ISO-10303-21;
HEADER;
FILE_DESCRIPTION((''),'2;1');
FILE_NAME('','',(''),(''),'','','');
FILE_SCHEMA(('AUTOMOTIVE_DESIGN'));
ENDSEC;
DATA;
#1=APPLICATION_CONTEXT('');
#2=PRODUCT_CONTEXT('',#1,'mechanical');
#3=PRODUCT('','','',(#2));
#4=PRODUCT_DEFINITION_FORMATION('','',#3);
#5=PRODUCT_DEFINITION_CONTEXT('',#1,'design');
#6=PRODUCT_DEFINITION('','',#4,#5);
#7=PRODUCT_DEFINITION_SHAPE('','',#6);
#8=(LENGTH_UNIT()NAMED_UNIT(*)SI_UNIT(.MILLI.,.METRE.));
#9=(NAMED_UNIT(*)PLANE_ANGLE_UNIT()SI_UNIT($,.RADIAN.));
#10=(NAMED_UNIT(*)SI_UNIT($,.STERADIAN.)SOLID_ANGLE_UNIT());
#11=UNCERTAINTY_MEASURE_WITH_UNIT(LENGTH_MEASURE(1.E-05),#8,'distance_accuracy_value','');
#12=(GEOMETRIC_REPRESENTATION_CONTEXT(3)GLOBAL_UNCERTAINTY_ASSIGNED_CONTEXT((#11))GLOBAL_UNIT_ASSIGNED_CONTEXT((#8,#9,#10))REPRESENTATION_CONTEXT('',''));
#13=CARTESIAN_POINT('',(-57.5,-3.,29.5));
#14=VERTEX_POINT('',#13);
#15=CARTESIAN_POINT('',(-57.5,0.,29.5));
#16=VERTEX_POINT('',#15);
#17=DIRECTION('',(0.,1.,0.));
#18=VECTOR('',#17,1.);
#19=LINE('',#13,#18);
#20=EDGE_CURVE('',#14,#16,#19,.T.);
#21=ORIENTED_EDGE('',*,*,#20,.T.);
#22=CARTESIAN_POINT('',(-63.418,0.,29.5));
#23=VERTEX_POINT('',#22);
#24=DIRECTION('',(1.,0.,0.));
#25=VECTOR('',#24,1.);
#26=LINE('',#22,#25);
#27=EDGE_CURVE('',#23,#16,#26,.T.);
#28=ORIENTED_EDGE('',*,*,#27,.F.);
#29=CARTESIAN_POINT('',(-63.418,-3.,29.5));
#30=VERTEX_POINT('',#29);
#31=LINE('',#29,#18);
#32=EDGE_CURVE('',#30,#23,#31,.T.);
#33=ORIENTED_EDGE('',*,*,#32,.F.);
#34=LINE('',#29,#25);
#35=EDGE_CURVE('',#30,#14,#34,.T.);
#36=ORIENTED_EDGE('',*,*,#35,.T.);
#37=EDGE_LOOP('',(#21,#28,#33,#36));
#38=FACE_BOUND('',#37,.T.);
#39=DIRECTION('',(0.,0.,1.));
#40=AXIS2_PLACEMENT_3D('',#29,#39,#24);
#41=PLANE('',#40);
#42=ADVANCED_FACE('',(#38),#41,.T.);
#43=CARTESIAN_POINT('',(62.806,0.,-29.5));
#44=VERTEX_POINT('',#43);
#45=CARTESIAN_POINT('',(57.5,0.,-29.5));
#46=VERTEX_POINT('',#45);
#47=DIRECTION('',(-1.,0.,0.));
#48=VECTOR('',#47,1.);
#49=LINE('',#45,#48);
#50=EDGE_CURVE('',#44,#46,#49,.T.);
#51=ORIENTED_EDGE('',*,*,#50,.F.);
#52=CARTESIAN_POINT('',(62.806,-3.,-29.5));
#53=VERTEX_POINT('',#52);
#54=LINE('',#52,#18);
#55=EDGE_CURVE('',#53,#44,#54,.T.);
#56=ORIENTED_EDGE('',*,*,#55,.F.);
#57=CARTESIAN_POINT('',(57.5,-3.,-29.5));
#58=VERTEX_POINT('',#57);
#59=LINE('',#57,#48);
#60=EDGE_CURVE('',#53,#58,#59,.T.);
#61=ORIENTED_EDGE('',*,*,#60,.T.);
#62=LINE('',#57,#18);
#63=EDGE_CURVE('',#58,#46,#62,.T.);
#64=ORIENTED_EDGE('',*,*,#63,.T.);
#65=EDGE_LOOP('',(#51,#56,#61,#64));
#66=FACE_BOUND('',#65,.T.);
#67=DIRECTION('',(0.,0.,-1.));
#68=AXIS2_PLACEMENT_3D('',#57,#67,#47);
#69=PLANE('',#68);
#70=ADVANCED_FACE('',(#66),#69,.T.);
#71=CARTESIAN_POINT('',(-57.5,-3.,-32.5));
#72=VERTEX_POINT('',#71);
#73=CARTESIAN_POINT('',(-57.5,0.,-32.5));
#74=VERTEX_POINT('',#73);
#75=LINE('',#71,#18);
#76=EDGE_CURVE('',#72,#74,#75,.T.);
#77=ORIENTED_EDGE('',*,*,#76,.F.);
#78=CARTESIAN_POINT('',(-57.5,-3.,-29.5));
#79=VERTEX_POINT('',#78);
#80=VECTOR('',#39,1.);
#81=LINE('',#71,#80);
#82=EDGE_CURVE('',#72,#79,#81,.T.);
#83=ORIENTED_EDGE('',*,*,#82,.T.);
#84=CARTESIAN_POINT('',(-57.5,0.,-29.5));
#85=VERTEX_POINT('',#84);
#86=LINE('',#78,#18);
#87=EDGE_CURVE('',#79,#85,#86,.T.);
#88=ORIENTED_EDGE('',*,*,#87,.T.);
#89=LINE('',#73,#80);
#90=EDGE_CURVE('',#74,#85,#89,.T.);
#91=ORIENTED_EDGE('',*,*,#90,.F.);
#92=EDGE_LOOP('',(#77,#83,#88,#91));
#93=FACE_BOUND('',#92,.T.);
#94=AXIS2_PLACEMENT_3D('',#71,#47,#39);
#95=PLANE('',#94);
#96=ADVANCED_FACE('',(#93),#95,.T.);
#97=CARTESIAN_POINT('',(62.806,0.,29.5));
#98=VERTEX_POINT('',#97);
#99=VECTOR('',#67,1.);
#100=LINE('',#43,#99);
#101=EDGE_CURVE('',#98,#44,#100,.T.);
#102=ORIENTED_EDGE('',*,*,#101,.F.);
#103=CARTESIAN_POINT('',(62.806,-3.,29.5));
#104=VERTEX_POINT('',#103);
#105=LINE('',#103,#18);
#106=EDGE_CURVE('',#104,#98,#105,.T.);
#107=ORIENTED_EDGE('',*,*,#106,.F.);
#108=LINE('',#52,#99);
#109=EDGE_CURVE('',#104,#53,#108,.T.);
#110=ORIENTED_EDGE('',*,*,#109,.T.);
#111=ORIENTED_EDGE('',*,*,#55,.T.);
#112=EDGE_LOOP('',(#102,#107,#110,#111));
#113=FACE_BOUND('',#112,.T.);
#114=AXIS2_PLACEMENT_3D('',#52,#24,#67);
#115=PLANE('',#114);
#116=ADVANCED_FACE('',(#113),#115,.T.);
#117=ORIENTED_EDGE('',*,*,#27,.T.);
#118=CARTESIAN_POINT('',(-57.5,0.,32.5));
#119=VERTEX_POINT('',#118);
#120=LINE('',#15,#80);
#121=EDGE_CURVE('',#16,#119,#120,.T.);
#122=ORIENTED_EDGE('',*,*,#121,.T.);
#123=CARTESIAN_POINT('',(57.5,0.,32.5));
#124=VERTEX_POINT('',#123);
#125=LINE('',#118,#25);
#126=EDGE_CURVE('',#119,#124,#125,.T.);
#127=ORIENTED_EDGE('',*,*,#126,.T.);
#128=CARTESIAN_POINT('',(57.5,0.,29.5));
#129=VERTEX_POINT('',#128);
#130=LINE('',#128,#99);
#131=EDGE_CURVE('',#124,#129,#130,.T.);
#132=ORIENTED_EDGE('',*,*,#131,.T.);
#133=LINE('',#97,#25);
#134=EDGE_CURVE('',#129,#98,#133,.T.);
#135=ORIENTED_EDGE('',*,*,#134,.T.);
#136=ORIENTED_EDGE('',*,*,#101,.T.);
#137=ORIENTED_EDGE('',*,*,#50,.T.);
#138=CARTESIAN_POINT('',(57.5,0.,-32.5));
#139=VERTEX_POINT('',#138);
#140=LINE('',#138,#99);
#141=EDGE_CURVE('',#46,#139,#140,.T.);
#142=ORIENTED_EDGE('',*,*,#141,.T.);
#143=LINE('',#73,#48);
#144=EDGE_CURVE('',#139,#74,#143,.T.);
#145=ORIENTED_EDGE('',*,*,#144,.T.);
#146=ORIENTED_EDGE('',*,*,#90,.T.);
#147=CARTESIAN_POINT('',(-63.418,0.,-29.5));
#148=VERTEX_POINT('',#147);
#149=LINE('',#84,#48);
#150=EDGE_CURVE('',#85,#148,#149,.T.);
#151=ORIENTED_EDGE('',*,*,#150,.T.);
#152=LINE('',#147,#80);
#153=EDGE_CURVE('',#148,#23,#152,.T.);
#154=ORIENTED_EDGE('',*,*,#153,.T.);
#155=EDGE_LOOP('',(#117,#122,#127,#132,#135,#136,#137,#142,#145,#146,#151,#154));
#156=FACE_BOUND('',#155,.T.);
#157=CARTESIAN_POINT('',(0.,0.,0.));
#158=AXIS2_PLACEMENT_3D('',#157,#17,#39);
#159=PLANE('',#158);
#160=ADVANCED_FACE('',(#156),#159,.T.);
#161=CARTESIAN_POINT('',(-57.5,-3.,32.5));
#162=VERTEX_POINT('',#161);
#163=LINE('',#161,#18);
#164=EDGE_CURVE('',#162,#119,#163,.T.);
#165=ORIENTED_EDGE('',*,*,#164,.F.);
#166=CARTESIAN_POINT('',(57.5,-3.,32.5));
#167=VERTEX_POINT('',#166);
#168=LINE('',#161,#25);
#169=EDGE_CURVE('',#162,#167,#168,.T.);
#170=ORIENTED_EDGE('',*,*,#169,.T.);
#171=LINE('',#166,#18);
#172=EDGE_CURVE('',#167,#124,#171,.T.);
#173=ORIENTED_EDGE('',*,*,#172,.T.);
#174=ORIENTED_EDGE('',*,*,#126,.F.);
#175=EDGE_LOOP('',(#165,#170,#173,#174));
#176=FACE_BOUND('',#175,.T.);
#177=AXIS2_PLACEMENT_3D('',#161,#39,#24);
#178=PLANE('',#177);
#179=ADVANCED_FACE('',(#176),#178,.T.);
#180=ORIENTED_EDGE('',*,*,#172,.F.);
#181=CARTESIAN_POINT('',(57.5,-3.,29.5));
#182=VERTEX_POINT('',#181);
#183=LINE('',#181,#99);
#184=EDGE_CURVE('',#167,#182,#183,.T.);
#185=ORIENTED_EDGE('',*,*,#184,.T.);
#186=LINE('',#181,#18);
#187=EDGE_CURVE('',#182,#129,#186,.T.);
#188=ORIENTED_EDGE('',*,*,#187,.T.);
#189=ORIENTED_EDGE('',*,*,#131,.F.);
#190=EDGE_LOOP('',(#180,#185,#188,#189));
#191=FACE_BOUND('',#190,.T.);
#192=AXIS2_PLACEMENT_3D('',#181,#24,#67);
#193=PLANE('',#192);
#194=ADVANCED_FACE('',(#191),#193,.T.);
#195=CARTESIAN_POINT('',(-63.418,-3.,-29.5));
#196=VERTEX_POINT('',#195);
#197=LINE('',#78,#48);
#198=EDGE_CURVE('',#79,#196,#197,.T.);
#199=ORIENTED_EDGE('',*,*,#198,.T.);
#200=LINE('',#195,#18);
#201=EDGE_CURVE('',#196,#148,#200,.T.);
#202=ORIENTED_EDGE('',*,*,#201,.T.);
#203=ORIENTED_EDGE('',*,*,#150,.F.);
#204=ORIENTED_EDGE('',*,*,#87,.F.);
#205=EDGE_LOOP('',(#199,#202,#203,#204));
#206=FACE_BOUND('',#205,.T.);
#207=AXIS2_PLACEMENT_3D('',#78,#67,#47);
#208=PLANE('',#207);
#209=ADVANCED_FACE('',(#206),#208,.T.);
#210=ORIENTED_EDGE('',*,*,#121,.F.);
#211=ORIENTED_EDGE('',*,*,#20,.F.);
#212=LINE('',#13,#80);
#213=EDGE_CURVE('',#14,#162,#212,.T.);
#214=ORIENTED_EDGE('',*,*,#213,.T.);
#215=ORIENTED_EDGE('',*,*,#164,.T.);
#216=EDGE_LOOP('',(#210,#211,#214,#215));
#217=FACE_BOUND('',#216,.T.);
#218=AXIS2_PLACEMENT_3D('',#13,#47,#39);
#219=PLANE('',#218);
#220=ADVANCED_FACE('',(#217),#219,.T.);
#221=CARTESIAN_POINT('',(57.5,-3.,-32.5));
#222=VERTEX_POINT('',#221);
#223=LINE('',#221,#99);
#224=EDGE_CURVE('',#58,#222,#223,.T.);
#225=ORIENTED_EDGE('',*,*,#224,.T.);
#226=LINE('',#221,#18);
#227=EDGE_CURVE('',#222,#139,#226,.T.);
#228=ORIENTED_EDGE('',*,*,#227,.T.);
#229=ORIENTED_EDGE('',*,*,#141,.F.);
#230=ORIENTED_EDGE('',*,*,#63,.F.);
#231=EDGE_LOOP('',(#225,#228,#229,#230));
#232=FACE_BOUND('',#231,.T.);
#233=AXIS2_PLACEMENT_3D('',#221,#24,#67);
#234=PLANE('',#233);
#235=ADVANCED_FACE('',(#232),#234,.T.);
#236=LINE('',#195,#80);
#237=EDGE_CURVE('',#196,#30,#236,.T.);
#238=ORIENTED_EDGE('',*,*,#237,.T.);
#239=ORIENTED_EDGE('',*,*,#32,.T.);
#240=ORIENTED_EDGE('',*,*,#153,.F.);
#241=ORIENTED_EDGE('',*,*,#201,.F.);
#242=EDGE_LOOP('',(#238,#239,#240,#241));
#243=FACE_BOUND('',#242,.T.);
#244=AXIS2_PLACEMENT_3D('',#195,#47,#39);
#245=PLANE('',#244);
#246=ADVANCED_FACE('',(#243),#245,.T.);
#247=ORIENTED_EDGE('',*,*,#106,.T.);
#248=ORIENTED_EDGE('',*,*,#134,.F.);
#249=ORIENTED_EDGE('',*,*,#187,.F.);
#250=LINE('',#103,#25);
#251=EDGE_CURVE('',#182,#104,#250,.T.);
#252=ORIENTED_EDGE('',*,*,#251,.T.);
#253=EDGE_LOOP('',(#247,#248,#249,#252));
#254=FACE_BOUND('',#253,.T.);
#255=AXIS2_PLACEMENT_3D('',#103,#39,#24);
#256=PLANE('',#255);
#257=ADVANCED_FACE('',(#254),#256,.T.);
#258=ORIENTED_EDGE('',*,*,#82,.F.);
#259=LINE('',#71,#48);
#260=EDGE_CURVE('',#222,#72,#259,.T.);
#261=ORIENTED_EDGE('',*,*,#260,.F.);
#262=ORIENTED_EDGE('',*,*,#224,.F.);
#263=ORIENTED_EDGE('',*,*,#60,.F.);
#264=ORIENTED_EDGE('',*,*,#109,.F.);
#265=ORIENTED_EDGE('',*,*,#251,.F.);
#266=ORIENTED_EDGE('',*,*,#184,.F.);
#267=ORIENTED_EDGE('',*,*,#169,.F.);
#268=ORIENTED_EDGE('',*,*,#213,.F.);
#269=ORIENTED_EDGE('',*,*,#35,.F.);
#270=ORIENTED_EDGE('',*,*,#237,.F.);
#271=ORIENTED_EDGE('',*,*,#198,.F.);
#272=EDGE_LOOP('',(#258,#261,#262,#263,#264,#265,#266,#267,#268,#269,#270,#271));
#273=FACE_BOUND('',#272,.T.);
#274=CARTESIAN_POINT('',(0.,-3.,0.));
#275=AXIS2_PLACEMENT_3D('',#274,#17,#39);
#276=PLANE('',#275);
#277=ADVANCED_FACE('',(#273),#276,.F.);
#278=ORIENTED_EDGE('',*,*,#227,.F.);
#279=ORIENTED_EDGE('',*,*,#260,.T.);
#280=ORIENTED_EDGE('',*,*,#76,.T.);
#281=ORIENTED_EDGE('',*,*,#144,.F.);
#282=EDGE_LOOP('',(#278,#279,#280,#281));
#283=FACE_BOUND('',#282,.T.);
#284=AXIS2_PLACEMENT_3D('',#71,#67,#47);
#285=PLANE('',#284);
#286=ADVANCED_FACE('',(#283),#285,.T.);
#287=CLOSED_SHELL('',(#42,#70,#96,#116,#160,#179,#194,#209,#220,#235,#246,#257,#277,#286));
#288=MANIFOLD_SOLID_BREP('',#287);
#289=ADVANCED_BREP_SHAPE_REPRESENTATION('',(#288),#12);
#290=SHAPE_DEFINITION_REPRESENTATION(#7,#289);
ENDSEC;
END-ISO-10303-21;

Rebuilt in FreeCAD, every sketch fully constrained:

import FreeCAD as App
import Part
import Sketcher

V = App.Vector


def add_polygon(sketch, points):
    """Adds a closed chain of lines whose ends are joined by coincident constraints."""
    first, n = sketch.GeometryCount, len(points)
    for a, b in zip(points, points[1:] + points[:1]):
        sketch.addGeometry(Part.LineSegment(App.Vector(*a, 0), App.Vector(*b, 0)), False)
    for i in range(n):
        sketch.addConstraint(Sketcher.Constraint("Coincident", first + i, 2, first + (i + 1) % n, 1))

doc = App.newDocument("Part")
body = doc.addObject("PartDesign::Body", "Body")

# Sketch on XZ plane
sketch1 = body.newObject("Sketcher::SketchObject", "Sketch")
sketch1.AttachmentSupport = (doc.getObject("XZ_Plane"), [""])
sketch1.MapMode = "FlatFace"
add_polygon(sketch1, [(-57.5, -29.5), (-63.4, -29.5), (-63.4, 29.5), (-57.5, 29.5), (-57.5, 32.5), (57.5, 32.5), (57.5, 29.5), (62.8, 29.5), (62.8, -29.5), (57.5, -29.5), (57.5, -32.5), (-57.5, -32.5)])  # lines 0-11
sketch1.addConstraint(Sketcher.Constraint("Horizontal", 0))
sketch1.addConstraint(Sketcher.Constraint("Vertical", 1))
sketch1.addConstraint(Sketcher.Constraint("Horizontal", 2))
sketch1.addConstraint(Sketcher.Constraint("Vertical", 3))
sketch1.addConstraint(Sketcher.Constraint("Horizontal", 4))
sketch1.addConstraint(Sketcher.Constraint("Vertical", 5))
sketch1.addConstraint(Sketcher.Constraint("Horizontal", 6))
sketch1.addConstraint(Sketcher.Constraint("Vertical", 7))
sketch1.addConstraint(Sketcher.Constraint("Horizontal", 8))
sketch1.addConstraint(Sketcher.Constraint("Vertical", 9))
sketch1.addConstraint(Sketcher.Constraint("Horizontal", 10))
sketch1.addConstraint(Sketcher.Constraint("Vertical", 11))
sketch1.addConstraint(Sketcher.Constraint("Symmetric", 2, 2, 8, 2, -1, 1))
sketch1.addConstraint(Sketcher.Constraint("Symmetric", 4, 2, 10, 2, -1, 1))
sketch1.addConstraint(Sketcher.Constraint("Symmetric", 2, 2, 5, 2, -2))
sketch1.addConstraint(Sketcher.Constraint("Horizontal", 0, 2, 7, 2))
sketch1.addConstraint(Sketcher.Constraint("DistanceX", 4, 1, 4, 2, 115.0))
sketch1.addConstraint(Sketcher.Constraint("DistanceY", 1, 1, 1, 2, 59.0))
sketch1.addConstraint(Sketcher.Constraint("DistanceY", 3, 1, 3, 2, 3.0))
sketch1.addConstraint(Sketcher.Constraint("DistanceX", 0, 2, 0, 1, 5.918))
sketch1.addConstraint(Sketcher.Constraint("DistanceX", 6, 1, 6, 2, 5.306))
pad1 = body.newObject("PartDesign::Pad", "Pad")
pad1.Profile = sketch1
pad1.Length = 3

doc.recompute()
